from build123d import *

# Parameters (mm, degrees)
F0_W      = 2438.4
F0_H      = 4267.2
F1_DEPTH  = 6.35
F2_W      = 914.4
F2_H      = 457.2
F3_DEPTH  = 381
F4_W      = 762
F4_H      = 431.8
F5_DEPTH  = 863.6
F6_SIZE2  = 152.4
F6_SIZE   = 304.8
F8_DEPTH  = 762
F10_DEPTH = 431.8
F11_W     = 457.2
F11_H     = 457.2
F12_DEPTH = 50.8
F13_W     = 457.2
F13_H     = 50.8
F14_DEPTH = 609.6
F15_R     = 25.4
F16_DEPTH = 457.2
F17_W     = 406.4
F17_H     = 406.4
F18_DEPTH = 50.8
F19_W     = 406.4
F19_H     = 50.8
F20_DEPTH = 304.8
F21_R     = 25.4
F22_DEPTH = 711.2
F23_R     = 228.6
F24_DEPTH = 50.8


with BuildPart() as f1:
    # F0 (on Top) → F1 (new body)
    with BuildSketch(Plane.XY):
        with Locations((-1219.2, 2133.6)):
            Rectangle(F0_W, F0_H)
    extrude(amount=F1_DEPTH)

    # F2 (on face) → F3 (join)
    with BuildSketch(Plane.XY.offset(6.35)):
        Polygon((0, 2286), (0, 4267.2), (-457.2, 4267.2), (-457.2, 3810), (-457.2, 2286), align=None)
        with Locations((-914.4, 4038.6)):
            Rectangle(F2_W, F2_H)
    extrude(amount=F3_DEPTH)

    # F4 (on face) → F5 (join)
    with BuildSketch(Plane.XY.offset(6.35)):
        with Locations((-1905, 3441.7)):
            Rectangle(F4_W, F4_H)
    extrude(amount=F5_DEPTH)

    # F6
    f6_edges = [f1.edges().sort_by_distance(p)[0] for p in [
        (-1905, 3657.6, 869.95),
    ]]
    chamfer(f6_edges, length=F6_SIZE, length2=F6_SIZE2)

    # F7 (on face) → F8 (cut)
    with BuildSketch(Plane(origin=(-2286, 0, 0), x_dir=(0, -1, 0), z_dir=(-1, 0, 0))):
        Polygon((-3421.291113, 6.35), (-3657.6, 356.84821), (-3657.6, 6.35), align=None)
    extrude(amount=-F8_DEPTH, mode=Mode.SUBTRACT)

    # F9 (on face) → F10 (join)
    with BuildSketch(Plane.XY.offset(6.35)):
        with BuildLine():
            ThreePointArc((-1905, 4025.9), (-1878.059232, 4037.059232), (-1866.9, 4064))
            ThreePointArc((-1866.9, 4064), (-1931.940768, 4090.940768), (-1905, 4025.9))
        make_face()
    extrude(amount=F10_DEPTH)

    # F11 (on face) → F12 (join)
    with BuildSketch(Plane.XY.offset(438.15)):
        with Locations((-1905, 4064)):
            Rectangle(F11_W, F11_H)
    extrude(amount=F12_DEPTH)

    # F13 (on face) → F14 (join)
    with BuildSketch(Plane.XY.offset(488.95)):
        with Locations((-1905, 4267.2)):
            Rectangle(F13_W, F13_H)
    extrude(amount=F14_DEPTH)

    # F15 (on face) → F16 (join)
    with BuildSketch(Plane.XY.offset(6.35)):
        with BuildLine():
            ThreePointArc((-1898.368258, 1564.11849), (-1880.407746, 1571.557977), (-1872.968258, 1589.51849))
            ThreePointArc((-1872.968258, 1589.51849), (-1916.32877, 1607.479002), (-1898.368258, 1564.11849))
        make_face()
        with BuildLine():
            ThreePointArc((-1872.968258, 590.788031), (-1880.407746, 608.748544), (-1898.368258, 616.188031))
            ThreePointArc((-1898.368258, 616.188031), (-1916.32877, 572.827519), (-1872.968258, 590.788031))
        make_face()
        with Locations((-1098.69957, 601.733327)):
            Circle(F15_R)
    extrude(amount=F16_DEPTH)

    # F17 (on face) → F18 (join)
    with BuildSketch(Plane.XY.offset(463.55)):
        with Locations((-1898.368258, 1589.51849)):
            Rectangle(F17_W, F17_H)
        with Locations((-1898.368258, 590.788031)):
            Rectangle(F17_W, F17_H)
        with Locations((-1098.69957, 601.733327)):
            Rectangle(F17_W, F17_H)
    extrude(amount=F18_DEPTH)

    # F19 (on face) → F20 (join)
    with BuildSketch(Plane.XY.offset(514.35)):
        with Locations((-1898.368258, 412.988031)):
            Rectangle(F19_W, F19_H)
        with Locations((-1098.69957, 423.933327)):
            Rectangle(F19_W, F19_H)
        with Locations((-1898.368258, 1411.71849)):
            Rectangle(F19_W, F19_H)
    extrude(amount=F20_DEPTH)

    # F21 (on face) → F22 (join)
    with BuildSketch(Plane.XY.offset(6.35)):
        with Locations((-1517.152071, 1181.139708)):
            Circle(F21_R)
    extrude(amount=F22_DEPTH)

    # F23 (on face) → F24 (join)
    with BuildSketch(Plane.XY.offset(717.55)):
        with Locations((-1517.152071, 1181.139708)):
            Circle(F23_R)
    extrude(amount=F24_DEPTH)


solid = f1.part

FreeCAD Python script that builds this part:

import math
import FreeCAD as App
import Part
import Sketcher
from FreeCAD import Vector
Q = App.Units.Quantity


def edges_at(feature, points):
    """Names of the edges that pass closest to the given points."""
    edges = feature.Shape.Edges
    near = lambda p: min(range(len(edges)), key=lambda i: edges[i].distToShape(Part.Vertex(*p))[0])
    return sorted({f"Edge{near(p) + 1}" for p in points})


def add_polygon(sketch, points):
    """Adds a closed chain of lines whose ends are joined by coincident constraints."""
    first, n = sketch.GeometryCount, len(points)
    for a, b in zip(points, points[1:] + points[:1]):
        sketch.addGeometry(Part.LineSegment(App.Vector(*a, 0), App.Vector(*b, 0)), False)
    for i in range(n):
        sketch.addConstraint(Sketcher.Constraint("Coincident", first + i, 2, first + (i + 1) % n, 1))

doc = App.newDocument("Part")
body = doc.addObject("PartDesign::Body", "Body")

sketch1 = body.newObject("Sketcher::SketchObject", "Sketch")
sketch1.AttachmentSupport = (doc.getObject("XY_Plane"), [""])
sketch1.MapMode = "FlatFace"
add_polygon(sketch1, [(-2438.4, 4267.2), (-2438.4, 0), (0, 0), (0, 4267.2)])
sketch1.addConstraint([
    Sketcher.Constraint("Vertical", 0),
    Sketcher.Constraint("Horizontal", 1),
    Sketcher.Constraint("Vertical", 2),
    Sketcher.Constraint("Horizontal", 3),
    Sketcher.Constraint("Coincident", 1, 2, -1, 1),
    Sketcher.Constraint("DistanceX", 1, 1, 1, 2, Q("96 in")),
    Sketcher.Constraint("DistanceY", 0, 2, 0, 1, Q("168 in")),
])
pad1 = body.newObject("PartDesign::Pad", "Pad")
pad1.Profile = sketch1
pad1.Length = Q("0.25 in")

sketch2 = body.newObject("Sketcher::SketchObject", "Sketch001")
sketch2.AttachmentSupport = (doc.getObject("XY_Plane"), [""])
sketch2.MapMode = "FlatFace"
sketch2.AttachmentOffset = App.Placement(Vector(0, 0, 0.25 * 25.4), App.Rotation())
add_polygon(sketch2, [(0, 2286), (0, 4267.2), (-1371.6, 4267.2), (-1371.6, 3810), (-457.2, 3810), (-457.2, 2286)])
sketch2.addConstraint([
    Sketcher.Constraint("Vertical", 0),
    Sketcher.Constraint("Horizontal", 1),
    Sketcher.Constraint("Vertical", 2),
    Sketcher.Constraint("Horizontal", 3),
    Sketcher.Constraint("Vertical", 4),
    Sketcher.Constraint("Horizontal", 5),
    Sketcher.Constraint("PointOnObject", 0, 2, -2),
    Sketcher.Constraint("Equal", 5, 2),
    Sketcher.Constraint("DistanceX", 1, 2, 1, 1, Q("54 in")),
    Sketcher.Constraint("DistanceX", 3, 1, 3, 2, Q("36 in")),
    Sketcher.Constraint("DistanceY", 0, 1, 0, 2, Q("78 in")),
    Sketcher.Constraint("DistanceY", -1, 1, 0, 2, Q("168 in")),
])
pad2 = body.newObject("PartDesign::Pad", "Pad001")
pad2.Profile = sketch2
pad2.Length = Q("15 in")

sketch3 = body.newObject("Sketcher::SketchObject", "Sketch002")
sketch3.AttachmentSupport = (doc.getObject("XY_Plane"), [""])
sketch3.MapMode = "FlatFace"
sketch3.AttachmentOffset = App.Placement(Vector(0, 0, 0.25 * 25.4), App.Rotation())
add_polygon(sketch3, [(-2286, 3657.6), (-2286, 3225.8), (-1524, 3225.8), (-1524, 3657.6)])
sketch3.addConstraint([
    Sketcher.Constraint("Vertical", 0),
    Sketcher.Constraint("Horizontal", 1),
    Sketcher.Constraint("Vertical", 2),
    Sketcher.Constraint("Horizontal", 3),
    Sketcher.Constraint("DistanceX", 1, 1, 1, 2, Q("30 in")),
    Sketcher.Constraint("DistanceY", 0, 2, 0, 1, Q("17 in")),
    Sketcher.Constraint("DistanceX", 0, 2, -1, 1, Q("90 in")),
    Sketcher.Constraint("DistanceY", -1, 1, 0, 2, Q("127 in")),
])
pad3 = body.newObject("PartDesign::Pad", "Pad002")
pad3.Profile = sketch3
pad3.Length = Q("34 in")
doc.recompute()

chamfer = body.newObject("PartDesign::Chamfer", "Chamfer")
chamfer.Base = (pad3, edges_at(pad3, [(-1905, 3657.6, 869.95)]))
chamfer.ChamferType = "Two distances"
chamfer.Size = Q("12 in")
chamfer.Size2 = Q("6 in")

sketch4 = body.newObject("Sketcher::SketchObject", "Sketch003")
sketch4.AttachmentSupport = (doc.getObject("YZ_Plane"), [""])
sketch4.MapMode = "FlatFace"
sketch4.AttachmentOffset = App.Placement(Vector(0, 0, -90 * 25.4), App.Rotation())
add_polygon(sketch4, [(3421.291113, 6.35), (3657.6, 356.84821), (3657.6, 6.35)])
sketch4.addConstraint([
    Sketcher.Constraint("Vertical", 1),
    Sketcher.Constraint("Horizontal", 2),
    Sketcher.Constraint("DistanceX", -1, 1, 0, 2, Q("144 in")),
    Sketcher.Constraint("DistanceY", -1, 1, 1, 2, Q("0.25 in")),
    Sketcher.Constraint("DistanceY", 1, 2, 1, 1, Q("350.49821 mm")),
    Sketcher.Constraint("DistanceX", 2, 2, 2, 1, Q("236.308887 mm")),
])
pocket1 = body.newObject("PartDesign::Pocket", "Pocket")
pocket1.Profile = sketch4
pocket1.Length = Q("30 in")
pocket1.Reversed = True

sketch5 = body.newObject("Sketcher::SketchObject", "Sketch004")
sketch5.AttachmentSupport = (doc.getObject("XY_Plane"), [""])
sketch5.MapMode = "FlatFace"
sketch5.AttachmentOffset = App.Placement(Vector(0, 0, 0.25 * 25.4), App.Rotation())
sketch5.addGeometry([
    Part.ArcOfCircle(Part.Circle(Vector(-1905.000001, 4064.000001, 0), Vector(0, 0, 1), 38.100001), math.radians(-89.999998), math.radians(-0.000002)),
    Part.ArcOfCircle(Part.Circle(Vector(-1905, 4064, 0), Vector(0, 0, 1), 38.1), math.radians(0), math.radians(270)),
], False)
sketch5.addConstraint([
    Sketcher.Constraint("Tangent", 0, 1, 1, 2),
    Sketcher.Constraint("Coincident", 1, 1, 0, 2),
    Sketcher.Constraint("Horizontal", 0, 3, 1, 1),
    Sketcher.Constraint("Vertical", 1, 3, 0, 1),
    Sketcher.Constraint("Radius", 0, Q("1.5 in")),
    Sketcher.Constraint("DistanceX", 0, 3, -1, 1, Q("75 in")),
    Sketcher.Constraint("DistanceY", -1, 1, 0, 3, Q("160 in")),
])
pad4 = body.newObject("PartDesign::Pad", "Pad003")
pad4.Profile = sketch5
pad4.Length = Q("17 in")

sketch6 = body.newObject("Sketcher::SketchObject", "Sketch005")
sketch6.AttachmentSupport = (doc.getObject("XY_Plane"), [""])
sketch6.MapMode = "FlatFace"
sketch6.AttachmentOffset = App.Placement(Vector(0, 0, 17.25 * 25.4), App.Rotation())
add_polygon(sketch6, [(-2133.6, 4292.6), (-2133.6, 3835.4), (-1676.4, 3835.4), (-1676.4, 4292.6)])
sketch6.addConstraint([
    Sketcher.Constraint("Vertical", 0),
    Sketcher.Constraint("Horizontal", 1),
    Sketcher.Constraint("Vertical", 2),
    Sketcher.Constraint("Horizontal", 3),
    Sketcher.Constraint("Equal", 3, 0),
    Sketcher.Constraint("DistanceX", 1, 1, 1, 2, Q("18 in")),
    Sketcher.Constraint("DistanceX", 0, 2, -1, 1, Q("84 in")),
    Sketcher.Constraint("DistanceY", -1, 1, 0, 2, Q("151 in")),
])
pad5 = body.newObject("PartDesign::Pad", "Pad004")
pad5.Profile = sketch6
pad5.Length = Q("2 in")

sketch7 = body.newObject("Sketcher::SketchObject", "Sketch006")
sketch7.AttachmentSupport = (doc.getObject("XY_Plane"), [""])
sketch7.MapMode = "FlatFace"
sketch7.AttachmentOffset = App.Placement(Vector(0, 0, 19.25 * 25.4), App.Rotation())
add_polygon(sketch7, [(-2133.6, 4292.6), (-2133.6, 4241.8), (-1676.4, 4241.8), (-1676.4, 4292.6)])
sketch7.addConstraint([
    Sketcher.Constraint("Vertical", 0),
    Sketcher.Constraint("Horizontal", 1),
    Sketcher.Constraint("Vertical", 2),
    Sketcher.Constraint("Horizontal", 3),
    Sketcher.Constraint("DistanceX", 1, 1, 1, 2, Q("18 in")),
    Sketcher.Constraint("DistanceY", 0, 2, 0, 1, Q("2 in")),
    Sketcher.Constraint("DistanceX", 0, 2, -1, 1, Q("84 in")),
    Sketcher.Constraint("DistanceY", -1, 1, 0, 2, Q("167 in")),
])
pad6 = body.newObject("PartDesign::Pad", "Pad005")
pad6.Profile = sketch7
pad6.Length = Q("24 in")

sketch8 = body.newObject("Sketcher::SketchObject", "Sketch007")
sketch8.AttachmentSupport = (doc.getObject("XY_Plane"), [""])
sketch8.MapMode = "FlatFace"
sketch8.AttachmentOffset = App.Placement(Vector(0, 0, 0.25 * 25.4), App.Rotation())
sketch8.addGeometry([
    Part.ArcOfCircle(Part.Circle(Vector(-1898.368257, 1589.518489, 0), Vector(0, 0, 1), 25.399999), math.radians(-90.000002), math.radians(0.000002)),
    Part.ArcOfCircle(Part.Circle(Vector(-1898.368258, 1589.51849, 0), Vector(0, 0, 1), 25.4), math.radians(0), math.radians(270)),
    Part.ArcOfCircle(Part.Circle(Vector(-1898.368257, 590.788032, 0), Vector(0, 0, 1), 25.399999), math.radians(-0.000002), math.radians(90.000002)),
    Part.ArcOfCircle(Part.Circle(Vector(-1898.368258, 590.788031, 0), Vector(0, 0, 1), 25.4), math.radians(90), math.radians(360)),
    Part.Circle(Vector(-1098.69957, 601.733327, 0), Vector(0, 0, 1), 25.4),
], False)
sketch8.addConstraint([
    Sketcher.Constraint("Tangent", 0, 1, 1, 2),
    Sketcher.Constraint("Coincident", 1, 1, 0, 2),
    Sketcher.Constraint("Tangent", 2, 1, 3, 2),
    Sketcher.Constraint("Coincident", 3, 1, 2, 2),
    Sketcher.Constraint("Equal", 1, 2),
    Sketcher.Constraint("Equal", 3, 4),
    Sketcher.Constraint("Horizontal", 0, 3, 1, 1),
    Sketcher.Constraint("Horizontal", 3, 3, 2, 1),
    Sketcher.Constraint("Vertical", 1, 3, 2, 3),
    Sketcher.Constraint("Vertical", 3, 3, 0, 1),
    Sketcher.Constraint("Vertical", 0, 1, 3, 1),
    Sketcher.Constraint("Diameter", 4, Q("2 in")),
    Sketcher.Constraint("DistanceY", -1, 1, 0, 3, Q("1589.518489 mm")),
    Sketcher.Constraint("DistanceY", -1, 1, 2, 3, Q("590.788032 mm")),
    Sketcher.Constraint("DistanceX", 4, 3, -1, 1, Q("1098.69957 mm")),
    Sketcher.Constraint("DistanceX", 0, 1, -1, 1, Q("1898.368258 mm")),
    Sketcher.Constraint("DistanceY", -1, 1, 4, 3, Q("601.733327 mm")),
])
pad7 = body.newObject("PartDesign::Pad", "Pad006")
pad7.Profile = sketch8
pad7.Length = Q("18 in")

sketch9 = body.newObject("Sketcher::SketchObject", "Sketch008")
sketch9.AttachmentSupport = (doc.getObject("XY_Plane"), [""])
sketch9.MapMode = "FlatFace"
sketch9.AttachmentOffset = App.Placement(Vector(0, 0, 18.25 * 25.4), App.Rotation())
add_polygon(sketch9, [(-2101.568258, 1792.71849), (-2101.568258, 1386.31849), (-1695.168258, 1386.31849), (-1695.168258, 1792.71849)])
add_polygon(sketch9, [(-2101.568258, 793.988031), (-2101.568258, 387.588031), (-1695.168258, 387.588031), (-1695.168258, 793.988031)])
add_polygon(sketch9, [(-1301.89957, 804.933327), (-1301.89957, 398.533327), (-895.49957, 398.533327), (-895.49957, 804.933327)])
sketch9.addConstraint([
    Sketcher.Constraint("Vertical", 0),
    Sketcher.Constraint("Horizontal", 1),
    Sketcher.Constraint("Vertical", 2),
    Sketcher.Constraint("Horizontal", 3),
    Sketcher.Constraint("Vertical", 4),
    Sketcher.Constraint("Horizontal", 5),
    Sketcher.Constraint("Vertical", 6),
    Sketcher.Constraint("Horizontal", 7),
    Sketcher.Constraint("Vertical", 8),
    Sketcher.Constraint("Horizontal", 9),
    Sketcher.Constraint("Vertical", 10),
    Sketcher.Constraint("Horizontal", 11),
    Sketcher.Constraint("Vertical", 3, 2, 4, 2),
    Sketcher.Constraint("Vertical", 2, 2, 5, 2),
    Sketcher.Constraint("Equal", 7, 9),
    Sketcher.Constraint("Equal", 11, 0),
    Sketcher.Constraint("Equal", 2, 4),
    Sketcher.Constraint("Equal", 6, 8),
    Sketcher.Constraint("DistanceX", 1, 1, 1, 2, Q("16 in")),
    Sketcher.Constraint("DistanceY", -1, 1, 0, 2, Q("1386.31849 mm")),
    Sketcher.Constraint("DistanceX", 1, 2, -1, 1, Q("1695.168258 mm")),
    Sketcher.Constraint("DistanceY", -1, 1, 4, 2, Q("387.588031 mm")),
    Sketcher.Constraint("DistanceX", 8, 2, -1, 1, Q("1301.89957 mm")),
    Sketcher.Constraint("DistanceY", -1, 1, 8, 2, Q("398.533327 mm")),
])
pad8 = body.newObject("PartDesign::Pad", "Pad007")
pad8.Profile = sketch9
pad8.Length = Q("2 in")

sketch10 = body.newObject("Sketcher::SketchObject", "Sketch009")
sketch10.AttachmentSupport = (doc.getObject("XY_Plane"), [""])
sketch10.MapMode = "FlatFace"
sketch10.AttachmentOffset = App.Placement(Vector(0, 0, 20.25 * 25.4), App.Rotation())
add_polygon(sketch10, [(-2101.568258, 438.388031), (-2101.568258, 387.588031), (-1695.168258, 387.588031), (-1695.168258, 438.388031)])
add_polygon(sketch10, [(-1301.89957, 449.333327), (-1301.89957, 398.533327), (-895.49957, 398.533327), (-895.49957, 449.333327)])
add_polygon(sketch10, [(-2101.568258, 1437.11849), (-2101.568258, 1386.31849), (-1695.168258, 1386.31849), (-1695.168258, 1437.11849)])
sketch10.addConstraint([
    Sketcher.Constraint("Vertical", 0),
    Sketcher.Constraint("Horizontal", 1),
    Sketcher.Constraint("Vertical", 2),
    Sketcher.Constraint("Horizontal", 3),
    Sketcher.Constraint("Vertical", 4),
    Sketcher.Constraint("Horizontal", 5),
    Sketcher.Constraint("Vertical", 6),
    Sketcher.Constraint("Horizontal", 7),
    Sketcher.Constraint("Vertical", 8),
    Sketcher.Constraint("Horizontal", 9),
    Sketcher.Constraint("Vertical", 10),
    Sketcher.Constraint("Horizontal", 11),
    Sketcher.Constraint("Vertical", 3, 2, 8, 2),
    Sketcher.Constraint("Vertical", 2, 2, 9, 2),
    Sketcher.Constraint("Equal", 3, 5),
    Sketcher.Constraint("Equal", 2, 4),
    Sketcher.Constraint("Equal", 6, 8),
    Sketcher.Constraint("DistanceX", 1, 1, 1, 2, Q("16 in")),
    Sketcher.Constraint("DistanceY", 0, 2, 0, 1, Q("2 in")),
    Sketcher.Constraint("DistanceY", -1, 1, 0, 2, Q("387.588031 mm")),
    Sketcher.Constraint("DistanceX", 1, 2, -1, 1, Q("1695.168258 mm")),
    Sketcher.Constraint("DistanceX", 4, 2, -1, 1, Q("1301.89957 mm")),
    Sketcher.Constraint("DistanceY", -1, 1, 8, 2, Q("1386.31849 mm")),
    Sketcher.Constraint("DistanceY", -1, 1, 4, 2, Q("398.533327 mm")),
])
pad9 = body.newObject("PartDesign::Pad", "Pad008")
pad9.Profile = sketch10
pad9.Length = Q("12 in")

sketch11 = body.newObject("Sketcher::SketchObject", "Sketch010")
sketch11.AttachmentSupport = (doc.getObject("XY_Plane"), [""])
sketch11.MapMode = "FlatFace"
sketch11.AttachmentOffset = App.Placement(Vector(0, 0, 0.25 * 25.4), App.Rotation())
sketch11.addGeometry(Part.Circle(Vector(-1517.152071, 1181.139708, 0), Vector(0, 0, 1), 25.4), False)
sketch11.addConstraint([
    Sketcher.Constraint("Diameter", 0, Q("2 in")),
    Sketcher.Constraint("DistanceX", 0, 3, -1, 1, Q("1517.152071 mm")),
    Sketcher.Constraint("DistanceY", -1, 1, 0, 3, Q("1181.139708 mm")),
])
pad10 = body.newObject("PartDesign::Pad", "Pad009")
pad10.Profile = sketch11
pad10.Length = Q("28 in")

sketch12 = body.newObject("Sketcher::SketchObject", "Sketch011")
sketch12.AttachmentSupport = (doc.getObject("XY_Plane"), [""])
sketch12.MapMode = "FlatFace"
sketch12.AttachmentOffset = App.Placement(Vector(0, 0, 28.25 * 25.4), App.Rotation())
sketch12.addGeometry(Part.Circle(Vector(-1517.152071, 1181.139708, 0), Vector(0, 0, 1), 228.6), False)
sketch12.addConstraint([
    Sketcher.Constraint("Diameter", 0, Q("18 in")),
    Sketcher.Constraint("DistanceX", 0, 3, -1, 1, Q("1517.152071 mm")),
    Sketcher.Constraint("DistanceY", -1, 1, 0, 3, Q("1181.139708 mm")),
])
pad11 = body.newObject("PartDesign::Pad", "Pad010")
pad11.Profile = sketch12
pad11.Length = Q("2 in")

doc.recompute()
